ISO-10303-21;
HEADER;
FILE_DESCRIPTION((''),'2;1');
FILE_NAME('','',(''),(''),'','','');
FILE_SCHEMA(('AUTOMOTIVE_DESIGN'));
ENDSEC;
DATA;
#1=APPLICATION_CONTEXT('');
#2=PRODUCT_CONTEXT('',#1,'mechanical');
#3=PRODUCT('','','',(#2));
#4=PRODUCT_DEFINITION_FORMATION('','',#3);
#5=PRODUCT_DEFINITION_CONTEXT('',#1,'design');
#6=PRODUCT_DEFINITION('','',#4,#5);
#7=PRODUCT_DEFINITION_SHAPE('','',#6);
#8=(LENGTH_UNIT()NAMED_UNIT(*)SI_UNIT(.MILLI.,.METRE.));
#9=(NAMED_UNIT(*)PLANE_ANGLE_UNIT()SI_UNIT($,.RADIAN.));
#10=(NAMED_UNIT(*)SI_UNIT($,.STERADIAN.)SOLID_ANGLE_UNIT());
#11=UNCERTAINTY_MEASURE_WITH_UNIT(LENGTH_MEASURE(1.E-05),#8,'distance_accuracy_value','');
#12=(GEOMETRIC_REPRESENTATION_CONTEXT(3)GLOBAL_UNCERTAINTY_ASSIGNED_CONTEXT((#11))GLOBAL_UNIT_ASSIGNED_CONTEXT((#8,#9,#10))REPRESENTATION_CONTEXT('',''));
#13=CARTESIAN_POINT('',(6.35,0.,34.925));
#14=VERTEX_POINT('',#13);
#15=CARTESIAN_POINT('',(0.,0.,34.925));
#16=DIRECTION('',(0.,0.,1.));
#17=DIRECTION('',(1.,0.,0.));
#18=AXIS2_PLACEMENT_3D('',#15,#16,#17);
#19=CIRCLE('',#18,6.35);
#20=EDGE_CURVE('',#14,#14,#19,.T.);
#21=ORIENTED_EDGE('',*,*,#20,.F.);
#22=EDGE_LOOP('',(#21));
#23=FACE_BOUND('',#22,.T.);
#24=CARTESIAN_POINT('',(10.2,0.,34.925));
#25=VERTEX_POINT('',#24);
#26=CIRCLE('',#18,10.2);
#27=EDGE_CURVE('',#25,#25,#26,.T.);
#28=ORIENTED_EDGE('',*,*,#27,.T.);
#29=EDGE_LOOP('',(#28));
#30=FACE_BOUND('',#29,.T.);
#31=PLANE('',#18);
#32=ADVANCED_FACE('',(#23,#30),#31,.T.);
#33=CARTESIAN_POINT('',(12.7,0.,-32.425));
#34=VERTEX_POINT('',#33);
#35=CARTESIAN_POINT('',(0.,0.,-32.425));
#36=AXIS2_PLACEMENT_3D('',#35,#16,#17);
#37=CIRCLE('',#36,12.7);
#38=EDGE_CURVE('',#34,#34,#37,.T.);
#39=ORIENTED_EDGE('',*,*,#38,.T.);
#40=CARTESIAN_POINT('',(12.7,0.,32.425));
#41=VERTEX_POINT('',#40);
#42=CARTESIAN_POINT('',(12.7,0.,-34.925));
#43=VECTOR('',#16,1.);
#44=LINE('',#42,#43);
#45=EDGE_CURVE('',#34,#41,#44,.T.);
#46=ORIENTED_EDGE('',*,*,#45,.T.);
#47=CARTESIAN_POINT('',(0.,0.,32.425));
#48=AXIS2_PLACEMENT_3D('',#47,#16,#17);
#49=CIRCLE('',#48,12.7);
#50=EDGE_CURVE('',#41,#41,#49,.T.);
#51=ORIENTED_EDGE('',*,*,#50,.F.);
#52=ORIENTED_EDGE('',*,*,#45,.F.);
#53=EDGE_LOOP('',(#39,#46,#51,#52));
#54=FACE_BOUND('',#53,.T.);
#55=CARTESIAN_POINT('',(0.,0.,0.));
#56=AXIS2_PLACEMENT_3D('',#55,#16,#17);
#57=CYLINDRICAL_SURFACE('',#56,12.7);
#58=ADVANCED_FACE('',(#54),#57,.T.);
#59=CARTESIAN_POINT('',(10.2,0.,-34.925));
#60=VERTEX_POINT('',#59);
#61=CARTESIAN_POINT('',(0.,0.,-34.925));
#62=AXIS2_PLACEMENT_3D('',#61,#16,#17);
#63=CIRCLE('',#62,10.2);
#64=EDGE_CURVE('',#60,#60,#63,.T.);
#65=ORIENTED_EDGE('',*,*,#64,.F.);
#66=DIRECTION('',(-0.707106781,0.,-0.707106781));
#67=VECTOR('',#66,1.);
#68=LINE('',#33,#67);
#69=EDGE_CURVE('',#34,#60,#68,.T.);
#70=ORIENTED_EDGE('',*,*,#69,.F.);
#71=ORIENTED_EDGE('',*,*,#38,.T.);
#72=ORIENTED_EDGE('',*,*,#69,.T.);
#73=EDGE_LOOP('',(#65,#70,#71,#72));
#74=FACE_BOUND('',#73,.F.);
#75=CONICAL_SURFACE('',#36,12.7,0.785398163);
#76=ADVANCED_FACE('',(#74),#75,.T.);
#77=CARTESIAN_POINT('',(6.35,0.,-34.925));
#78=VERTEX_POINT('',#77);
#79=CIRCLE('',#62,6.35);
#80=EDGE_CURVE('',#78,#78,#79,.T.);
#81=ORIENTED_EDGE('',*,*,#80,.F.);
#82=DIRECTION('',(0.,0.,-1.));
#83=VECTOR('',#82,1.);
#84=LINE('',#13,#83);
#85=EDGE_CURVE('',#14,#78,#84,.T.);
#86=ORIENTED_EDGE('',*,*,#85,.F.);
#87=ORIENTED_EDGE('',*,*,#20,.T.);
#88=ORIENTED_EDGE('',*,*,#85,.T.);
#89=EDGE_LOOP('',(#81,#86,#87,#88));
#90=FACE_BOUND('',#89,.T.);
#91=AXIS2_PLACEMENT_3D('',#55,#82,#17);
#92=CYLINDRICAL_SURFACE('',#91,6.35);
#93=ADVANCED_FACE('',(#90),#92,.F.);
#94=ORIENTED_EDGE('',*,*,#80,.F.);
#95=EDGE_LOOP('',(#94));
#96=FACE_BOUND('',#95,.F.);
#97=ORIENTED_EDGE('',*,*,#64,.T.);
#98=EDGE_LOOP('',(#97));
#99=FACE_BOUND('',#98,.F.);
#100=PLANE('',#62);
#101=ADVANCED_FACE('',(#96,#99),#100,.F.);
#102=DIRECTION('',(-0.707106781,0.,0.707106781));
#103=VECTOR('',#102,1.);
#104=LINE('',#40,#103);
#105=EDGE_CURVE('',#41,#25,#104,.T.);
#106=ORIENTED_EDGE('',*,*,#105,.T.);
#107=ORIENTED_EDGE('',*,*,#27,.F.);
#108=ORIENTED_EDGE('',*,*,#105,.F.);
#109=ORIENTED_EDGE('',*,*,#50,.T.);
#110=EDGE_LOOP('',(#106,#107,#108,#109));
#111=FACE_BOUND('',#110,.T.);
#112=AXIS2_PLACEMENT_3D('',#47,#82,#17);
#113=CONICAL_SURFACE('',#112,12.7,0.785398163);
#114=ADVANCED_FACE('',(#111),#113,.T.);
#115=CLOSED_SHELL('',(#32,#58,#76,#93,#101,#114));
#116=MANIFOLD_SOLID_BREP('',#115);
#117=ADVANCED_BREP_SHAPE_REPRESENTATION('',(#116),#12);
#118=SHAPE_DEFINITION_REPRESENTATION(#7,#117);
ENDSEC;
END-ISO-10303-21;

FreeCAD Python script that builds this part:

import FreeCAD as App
import Part
import Sketcher
from FreeCAD import Vector
Q = App.Units.Quantity


def edges_at(feature, points):
    """Names of the edges that pass closest to the given points."""
    edges = feature.Shape.Edges
    near = lambda p: min(range(len(edges)), key=lambda i: edges[i].distToShape(Part.Vertex(*p))[0])
    return sorted({f"Edge{near(p) + 1}" for p in points})

doc = App.newDocument("Part")
params = doc.addObject("Spreadsheet::Sheet", "Params")
for row, (alias, value) in enumerate([
    ("sketch1_diameter", "1 in"),
    ("sketch1_diameter2", "0.5 in"),
    ("pad1_length", "2.75 in"),
    ("chamfer_size", "2.5 mm"),
], start=1):
    params.set(f"A{row}", alias)
    params.set(f"B{row}", "=" + value)
    params.setAlias(f"B{row}", alias)

body = doc.addObject("PartDesign::Body", "Body")

# Sketch on XY plane
sketch1 = body.newObject("Sketcher::SketchObject", "Sketch")
sketch1.AttachmentSupport = (doc.getObject("XY_Plane"), [""])
sketch1.MapMode = "FlatFace"
sketch1.addGeometry(Part.Circle(Vector(0, 0, 0), Vector(0, 0, 1), 13), False)
sketch1.addGeometry(Part.Circle(Vector(0, 0, 0), Vector(0, 0, 1), 6), False)
sketch1.addConstraint(Sketcher.Constraint("Coincident", 0, 3, -1, 1))
sketch1.addConstraint(Sketcher.Constraint("Coincident", 1, 3, -1, 1))
sketch1.addConstraint(Sketcher.Constraint("Diameter", 0, Q("1 in")))
sketch1.addConstraint(Sketcher.Constraint("Diameter", 1, Q("0.5 in")))
sketch1.setExpression("Constraints[2]", "Params.sketch1_diameter")
sketch1.setExpression("Constraints[3]", "Params.sketch1_diameter2")
pad1 = body.newObject("PartDesign::Pad", "Pad")
pad1.Profile = sketch1
pad1.setExpression("Length", "Params.pad1_length")
pad1.Midplane = True
doc.recompute()

chamfer = body.newObject("PartDesign::Chamfer", "Chamfer")
chamfer.Base = (pad1, edges_at(pad1, [(-12.7, 0, -34.925), (-12.7, 0, 34.925)]))
chamfer.setExpression("Size", "Params.chamfer_size")

doc.recompute()
